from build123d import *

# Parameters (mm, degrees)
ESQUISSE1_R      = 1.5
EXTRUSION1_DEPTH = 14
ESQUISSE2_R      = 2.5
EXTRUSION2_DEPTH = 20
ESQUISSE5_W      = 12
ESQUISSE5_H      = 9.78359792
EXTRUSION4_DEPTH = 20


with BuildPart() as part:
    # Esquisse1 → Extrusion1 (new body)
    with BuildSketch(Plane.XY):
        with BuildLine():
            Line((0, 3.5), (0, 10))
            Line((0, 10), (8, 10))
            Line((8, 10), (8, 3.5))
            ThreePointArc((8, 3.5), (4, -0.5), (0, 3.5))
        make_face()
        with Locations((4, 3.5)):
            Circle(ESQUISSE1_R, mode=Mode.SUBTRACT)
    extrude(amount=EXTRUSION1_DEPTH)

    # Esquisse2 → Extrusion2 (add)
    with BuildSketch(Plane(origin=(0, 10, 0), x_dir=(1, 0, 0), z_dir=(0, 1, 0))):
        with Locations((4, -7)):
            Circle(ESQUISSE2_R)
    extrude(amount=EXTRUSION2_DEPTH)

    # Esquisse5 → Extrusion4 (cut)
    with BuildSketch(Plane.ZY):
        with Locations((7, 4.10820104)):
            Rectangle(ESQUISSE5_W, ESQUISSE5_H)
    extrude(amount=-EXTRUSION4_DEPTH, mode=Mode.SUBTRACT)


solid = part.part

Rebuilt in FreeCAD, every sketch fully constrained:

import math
import FreeCAD as App
import Part
import Sketcher

V = App.Vector

doc = App.newDocument("Part")
body = doc.addObject("PartDesign::Body", "Body")

sketch1 = body.newObject("Sketcher::SketchObject", "Sketch")
sketch1.AttachmentSupport = (doc.getObject("XY_Plane"), [""])
sketch1.MapMode = "FlatFace"
sketch1.addGeometry(Part.LineSegment(V(0, 10, 0), V(0, 3.5, 0)), False)
sketch1.addGeometry(Part.ArcOfCircle(Part.Circle(V(4, 3.5, 0), V(0, 0, 1), 4), math.radians(180), math.radians(360)), False)
sketch1.addGeometry(Part.LineSegment(V(8, 3.5, 0), V(8, 10, 0)), False)
sketch1.addGeometry(Part.LineSegment(V(8, 10, 0), V(0, 10, 0)), False)
sketch1.addGeometry(Part.Circle(V(4, 3.5, 0), V(0, 0, 1), 1.5), False)
sketch1.addConstraint(Sketcher.Constraint("Tangent", 0, 2, 1, 1))
sketch1.addConstraint(Sketcher.Constraint("Tangent", 1, 2, 2, 1))
sketch1.addConstraint(Sketcher.Constraint("Coincident", 2, 2, 3, 1))
sketch1.addConstraint(Sketcher.Constraint("Coincident", 3, 2, 0, 1))
sketch1.addConstraint(Sketcher.Constraint("Vertical", 0))
sketch1.addConstraint(Sketcher.Constraint("Vertical", 2))
sketch1.addConstraint(Sketcher.Constraint("Horizontal", 3))
sketch1.addConstraint(Sketcher.Constraint("Coincident", 4, 3, 1, 3))
sketch1.addConstraint(Sketcher.Constraint("PointOnObject", 0, 2, -2))
sketch1.addConstraint(Sketcher.Constraint("Diameter", 4, 3.0))
sketch1.addConstraint(Sketcher.Constraint("Radius", 1, 4.0))
sketch1.addConstraint(Sketcher.Constraint("DistanceY", 0, 2, 0, 1, 6.5))
sketch1.addConstraint(Sketcher.Constraint("DistanceY", -1, 1, 2, 2, 10.0))
pad1 = body.newObject("PartDesign::Pad", "Pad")
pad1.Profile = sketch1
pad1.Length = 14

sketch2 = body.newObject("Sketcher::SketchObject", "Sketch001")
sketch2.AttachmentSupport = (doc.getObject("XZ_Plane"), [""])
sketch2.MapMode = "FlatFace"
sketch2.AttachmentOffset = App.Placement(V(0, 0, -10), App.Rotation())
sketch2.addGeometry(Part.Circle(V(4, 7, 0), V(0, 0, 1), 2.5), False)
sketch2.addConstraint(Sketcher.Constraint("Diameter", 0, 5.0))
sketch2.addConstraint(Sketcher.Constraint("DistanceX", -1, 1, 0, 3, 4.0))
sketch2.addConstraint(Sketcher.Constraint("DistanceY", -1, 1, 0, 3, 7.0))
pad2 = body.newObject("PartDesign::Pad", "Pad001")
pad2.Profile = sketch2
pad2.Length = 20
pad2.Reversed = True

sketch3 = body.newObject("Sketcher::SketchObject", "Sketch002")
sketch3.AttachmentSupport = (doc.getObject("YZ_Plane"), [""])
sketch3.MapMode = "FlatFace"
sketch3.addGeometry(Part.LineSegment(V(9, 1, 0), V(-1, 1, 0)), False)
sketch3.addGeometry(Part.LineSegment(V(-1, 1, 0), V(-1, 13, 0)), False)
sketch3.addGeometry(Part.LineSegment(V(-1, 13, 0), V(9, 13, 0)), False)
sketch3.addGeometry(Part.LineSegment(V(9, 13, 0), V(9, 1, 0)), False)
sketch3.addConstraint(Sketcher.Constraint("Coincident", 0, 2, 1, 1))
sketch3.addConstraint(Sketcher.Constraint("Coincident", 1, 2, 2, 1))
sketch3.addConstraint(Sketcher.Constraint("Coincident", 2, 2, 3, 1))
sketch3.addConstraint(Sketcher.Constraint("Coincident", 3, 2, 0, 1))
sketch3.addConstraint(Sketcher.Constraint("Horizontal", 0))
sketch3.addConstraint(Sketcher.Constraint("Vertical", 1))
sketch3.addConstraint(Sketcher.Constraint("Horizontal", 2))
sketch3.addConstraint(Sketcher.Constraint("Vertical", 3))
sketch3.addConstraint(Sketcher.Constraint("DistanceY", 1, 1, 1, 2, 12.0))
sketch3.addConstraint(Sketcher.Constraint("DistanceY", -1, 1, 0, 2, 1.0))
sketch3.addConstraint(Sketcher.Constraint("DistanceX", -1, 1, 2, 2, 9.0))
sketch3.addConstraint(Sketcher.Constraint("DistanceX", 0, 2, 0, 1, 9.783598))
pocket1 = body.newObject("PartDesign::Pocket", "Pocket")
pocket1.Profile = sketch3
pocket1.Length = 20
pocket1.Reversed = True

doc.recompute()
